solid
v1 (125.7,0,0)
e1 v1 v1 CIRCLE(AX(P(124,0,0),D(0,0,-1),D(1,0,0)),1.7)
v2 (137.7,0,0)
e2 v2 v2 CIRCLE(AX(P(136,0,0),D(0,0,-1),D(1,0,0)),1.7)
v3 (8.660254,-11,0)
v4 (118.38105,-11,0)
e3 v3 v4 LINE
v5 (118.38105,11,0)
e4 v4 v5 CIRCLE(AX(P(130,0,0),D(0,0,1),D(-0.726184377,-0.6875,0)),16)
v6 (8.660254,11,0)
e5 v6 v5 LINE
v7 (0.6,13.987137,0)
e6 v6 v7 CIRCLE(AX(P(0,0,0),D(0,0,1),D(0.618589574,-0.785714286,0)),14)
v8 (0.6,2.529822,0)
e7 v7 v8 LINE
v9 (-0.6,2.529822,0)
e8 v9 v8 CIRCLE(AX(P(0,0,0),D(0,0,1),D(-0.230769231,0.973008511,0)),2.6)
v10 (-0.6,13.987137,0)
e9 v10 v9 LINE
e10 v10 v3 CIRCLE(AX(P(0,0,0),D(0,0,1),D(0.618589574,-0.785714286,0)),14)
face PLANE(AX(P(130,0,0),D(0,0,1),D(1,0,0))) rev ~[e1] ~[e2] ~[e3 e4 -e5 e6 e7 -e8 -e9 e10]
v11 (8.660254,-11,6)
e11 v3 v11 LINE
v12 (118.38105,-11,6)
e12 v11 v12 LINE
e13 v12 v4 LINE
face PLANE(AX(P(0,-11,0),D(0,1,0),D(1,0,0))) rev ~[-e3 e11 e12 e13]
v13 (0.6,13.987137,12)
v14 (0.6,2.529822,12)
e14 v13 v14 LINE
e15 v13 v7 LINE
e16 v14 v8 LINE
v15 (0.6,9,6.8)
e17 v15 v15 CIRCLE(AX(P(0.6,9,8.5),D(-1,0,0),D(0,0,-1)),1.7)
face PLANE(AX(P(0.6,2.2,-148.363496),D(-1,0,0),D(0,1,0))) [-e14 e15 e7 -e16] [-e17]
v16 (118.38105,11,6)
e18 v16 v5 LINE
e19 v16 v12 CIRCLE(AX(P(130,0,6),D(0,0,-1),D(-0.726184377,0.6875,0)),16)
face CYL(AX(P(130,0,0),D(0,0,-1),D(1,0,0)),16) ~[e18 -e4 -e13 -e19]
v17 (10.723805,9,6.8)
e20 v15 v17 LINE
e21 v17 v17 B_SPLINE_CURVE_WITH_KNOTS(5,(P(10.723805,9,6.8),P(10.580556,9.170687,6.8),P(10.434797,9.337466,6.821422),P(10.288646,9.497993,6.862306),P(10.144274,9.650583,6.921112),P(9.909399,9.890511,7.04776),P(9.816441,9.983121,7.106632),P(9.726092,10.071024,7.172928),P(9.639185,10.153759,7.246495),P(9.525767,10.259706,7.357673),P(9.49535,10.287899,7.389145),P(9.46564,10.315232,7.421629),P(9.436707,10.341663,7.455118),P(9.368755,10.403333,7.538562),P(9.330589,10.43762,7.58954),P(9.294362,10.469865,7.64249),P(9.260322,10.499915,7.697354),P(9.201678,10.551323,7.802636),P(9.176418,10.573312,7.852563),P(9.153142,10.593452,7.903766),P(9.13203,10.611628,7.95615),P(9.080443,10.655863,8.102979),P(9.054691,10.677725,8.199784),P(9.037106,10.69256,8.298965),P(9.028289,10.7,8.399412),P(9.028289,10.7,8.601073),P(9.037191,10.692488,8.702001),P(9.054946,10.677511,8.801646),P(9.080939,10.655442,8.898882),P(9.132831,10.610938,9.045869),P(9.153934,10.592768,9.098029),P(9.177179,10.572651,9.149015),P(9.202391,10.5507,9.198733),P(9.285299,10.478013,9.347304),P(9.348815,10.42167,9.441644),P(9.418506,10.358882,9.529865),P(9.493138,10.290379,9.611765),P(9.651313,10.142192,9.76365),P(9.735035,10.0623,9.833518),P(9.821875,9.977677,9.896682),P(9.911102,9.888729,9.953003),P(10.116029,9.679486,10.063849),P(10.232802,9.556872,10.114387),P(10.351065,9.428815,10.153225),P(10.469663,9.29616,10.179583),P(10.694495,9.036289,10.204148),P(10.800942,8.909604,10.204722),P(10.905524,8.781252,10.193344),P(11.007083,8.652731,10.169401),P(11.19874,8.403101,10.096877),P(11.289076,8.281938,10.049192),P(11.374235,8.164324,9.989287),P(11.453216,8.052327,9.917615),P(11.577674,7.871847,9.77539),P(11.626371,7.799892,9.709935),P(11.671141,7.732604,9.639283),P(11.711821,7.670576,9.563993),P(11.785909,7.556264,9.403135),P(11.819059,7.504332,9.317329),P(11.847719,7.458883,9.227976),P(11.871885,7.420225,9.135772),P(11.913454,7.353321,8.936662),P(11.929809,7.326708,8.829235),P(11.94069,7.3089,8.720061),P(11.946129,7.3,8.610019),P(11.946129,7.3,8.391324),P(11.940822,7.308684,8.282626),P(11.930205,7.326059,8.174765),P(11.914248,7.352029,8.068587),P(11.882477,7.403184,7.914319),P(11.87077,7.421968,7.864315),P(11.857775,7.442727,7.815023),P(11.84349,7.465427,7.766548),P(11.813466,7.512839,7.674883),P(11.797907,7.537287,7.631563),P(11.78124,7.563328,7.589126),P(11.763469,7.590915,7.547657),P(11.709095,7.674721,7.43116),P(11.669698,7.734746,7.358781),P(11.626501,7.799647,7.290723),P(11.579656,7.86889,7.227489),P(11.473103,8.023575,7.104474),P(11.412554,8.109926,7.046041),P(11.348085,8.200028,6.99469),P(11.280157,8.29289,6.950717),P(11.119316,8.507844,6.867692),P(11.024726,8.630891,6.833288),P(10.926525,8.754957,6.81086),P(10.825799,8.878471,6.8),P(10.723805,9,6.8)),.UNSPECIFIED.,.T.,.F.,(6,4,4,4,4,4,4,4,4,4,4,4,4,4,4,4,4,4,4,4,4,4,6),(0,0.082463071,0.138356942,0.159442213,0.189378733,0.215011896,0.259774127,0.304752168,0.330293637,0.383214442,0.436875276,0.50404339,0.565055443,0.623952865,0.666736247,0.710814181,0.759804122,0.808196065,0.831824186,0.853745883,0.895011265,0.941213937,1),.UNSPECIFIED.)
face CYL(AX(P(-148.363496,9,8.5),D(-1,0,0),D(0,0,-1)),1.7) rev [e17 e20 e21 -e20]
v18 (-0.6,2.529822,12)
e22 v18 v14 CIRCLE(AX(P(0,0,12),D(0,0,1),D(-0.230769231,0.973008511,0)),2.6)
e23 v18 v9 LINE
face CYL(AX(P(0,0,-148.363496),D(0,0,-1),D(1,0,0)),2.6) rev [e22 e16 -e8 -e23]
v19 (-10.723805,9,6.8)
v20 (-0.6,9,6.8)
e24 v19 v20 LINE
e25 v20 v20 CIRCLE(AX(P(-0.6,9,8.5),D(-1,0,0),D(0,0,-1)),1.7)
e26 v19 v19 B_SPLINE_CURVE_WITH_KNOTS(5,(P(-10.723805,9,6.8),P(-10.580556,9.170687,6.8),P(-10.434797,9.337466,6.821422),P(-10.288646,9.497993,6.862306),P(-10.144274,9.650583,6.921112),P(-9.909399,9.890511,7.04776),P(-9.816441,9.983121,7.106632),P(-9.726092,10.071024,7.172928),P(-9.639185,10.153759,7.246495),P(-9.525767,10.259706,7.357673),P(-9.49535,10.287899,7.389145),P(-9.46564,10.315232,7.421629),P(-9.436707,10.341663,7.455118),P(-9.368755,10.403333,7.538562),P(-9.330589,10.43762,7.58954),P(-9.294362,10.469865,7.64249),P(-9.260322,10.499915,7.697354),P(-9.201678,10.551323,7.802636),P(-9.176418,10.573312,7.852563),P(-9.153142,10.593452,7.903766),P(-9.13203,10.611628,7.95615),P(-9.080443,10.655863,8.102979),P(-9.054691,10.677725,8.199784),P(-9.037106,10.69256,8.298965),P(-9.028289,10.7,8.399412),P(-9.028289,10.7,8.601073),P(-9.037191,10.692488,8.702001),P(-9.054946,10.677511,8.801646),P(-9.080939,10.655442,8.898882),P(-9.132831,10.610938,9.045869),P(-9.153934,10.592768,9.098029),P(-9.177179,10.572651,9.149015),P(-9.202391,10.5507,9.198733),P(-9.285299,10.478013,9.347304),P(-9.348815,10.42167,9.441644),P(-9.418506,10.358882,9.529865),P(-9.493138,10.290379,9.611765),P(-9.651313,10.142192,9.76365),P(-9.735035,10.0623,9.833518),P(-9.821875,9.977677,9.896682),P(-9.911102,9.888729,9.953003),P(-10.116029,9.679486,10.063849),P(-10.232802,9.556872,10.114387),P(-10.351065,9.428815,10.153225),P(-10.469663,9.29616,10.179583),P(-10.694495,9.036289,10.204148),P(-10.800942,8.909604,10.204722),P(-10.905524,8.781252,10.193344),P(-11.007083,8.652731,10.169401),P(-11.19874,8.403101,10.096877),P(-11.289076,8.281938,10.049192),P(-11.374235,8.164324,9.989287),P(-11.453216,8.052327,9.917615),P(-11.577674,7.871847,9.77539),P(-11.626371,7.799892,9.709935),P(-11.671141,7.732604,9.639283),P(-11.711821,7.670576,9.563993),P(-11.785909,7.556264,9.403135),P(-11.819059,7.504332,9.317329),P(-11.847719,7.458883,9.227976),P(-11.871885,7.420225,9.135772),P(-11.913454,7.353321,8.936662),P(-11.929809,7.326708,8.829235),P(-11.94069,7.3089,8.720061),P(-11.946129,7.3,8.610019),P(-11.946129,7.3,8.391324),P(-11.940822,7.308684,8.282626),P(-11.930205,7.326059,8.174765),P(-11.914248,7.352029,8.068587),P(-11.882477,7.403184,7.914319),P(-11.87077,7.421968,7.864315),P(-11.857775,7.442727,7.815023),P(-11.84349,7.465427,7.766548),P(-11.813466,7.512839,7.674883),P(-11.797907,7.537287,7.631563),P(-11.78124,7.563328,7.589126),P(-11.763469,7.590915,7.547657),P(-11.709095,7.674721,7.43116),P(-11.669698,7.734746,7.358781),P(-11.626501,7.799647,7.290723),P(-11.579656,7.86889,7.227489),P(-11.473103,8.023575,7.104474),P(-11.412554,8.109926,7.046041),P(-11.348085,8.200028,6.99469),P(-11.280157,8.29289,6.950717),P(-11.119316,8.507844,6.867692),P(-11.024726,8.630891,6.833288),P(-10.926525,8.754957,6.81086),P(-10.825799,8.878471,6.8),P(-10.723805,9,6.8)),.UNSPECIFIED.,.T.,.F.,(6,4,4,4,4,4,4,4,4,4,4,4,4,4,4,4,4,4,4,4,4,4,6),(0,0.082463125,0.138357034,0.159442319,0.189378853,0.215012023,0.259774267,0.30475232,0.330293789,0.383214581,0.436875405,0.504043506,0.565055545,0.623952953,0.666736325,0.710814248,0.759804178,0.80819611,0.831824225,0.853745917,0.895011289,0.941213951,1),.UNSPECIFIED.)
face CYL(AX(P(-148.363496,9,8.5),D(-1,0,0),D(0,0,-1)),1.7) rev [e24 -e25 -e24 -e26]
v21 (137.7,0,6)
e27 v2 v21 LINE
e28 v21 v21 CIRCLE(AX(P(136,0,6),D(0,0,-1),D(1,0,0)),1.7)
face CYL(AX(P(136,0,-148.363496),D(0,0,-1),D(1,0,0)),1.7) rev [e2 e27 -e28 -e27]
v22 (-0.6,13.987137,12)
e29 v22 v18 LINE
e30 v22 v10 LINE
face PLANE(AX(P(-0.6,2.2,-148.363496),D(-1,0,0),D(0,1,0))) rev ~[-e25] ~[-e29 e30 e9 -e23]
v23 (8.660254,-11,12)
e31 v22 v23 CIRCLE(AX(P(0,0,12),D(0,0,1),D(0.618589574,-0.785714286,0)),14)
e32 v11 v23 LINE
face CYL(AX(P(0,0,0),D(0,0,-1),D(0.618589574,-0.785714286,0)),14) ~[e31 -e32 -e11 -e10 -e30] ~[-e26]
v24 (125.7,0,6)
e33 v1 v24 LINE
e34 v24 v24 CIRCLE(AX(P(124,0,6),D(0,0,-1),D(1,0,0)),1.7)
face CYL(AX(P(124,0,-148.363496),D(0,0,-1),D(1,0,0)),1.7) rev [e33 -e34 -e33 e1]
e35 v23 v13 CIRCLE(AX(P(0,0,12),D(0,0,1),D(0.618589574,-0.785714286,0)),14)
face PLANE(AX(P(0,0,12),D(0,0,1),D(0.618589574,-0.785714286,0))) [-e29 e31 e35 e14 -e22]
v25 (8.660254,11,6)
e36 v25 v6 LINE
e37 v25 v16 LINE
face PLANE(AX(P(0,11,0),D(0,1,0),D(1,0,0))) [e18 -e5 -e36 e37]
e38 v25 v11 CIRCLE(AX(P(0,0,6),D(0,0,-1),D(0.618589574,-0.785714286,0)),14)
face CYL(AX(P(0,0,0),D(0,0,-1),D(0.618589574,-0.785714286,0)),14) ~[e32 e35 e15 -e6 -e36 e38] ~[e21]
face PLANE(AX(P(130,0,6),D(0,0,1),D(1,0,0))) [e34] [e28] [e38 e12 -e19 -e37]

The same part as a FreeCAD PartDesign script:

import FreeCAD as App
import Part
import Sketcher
from FreeCAD import Vector

doc = App.newDocument("Part")
params = doc.addObject("Spreadsheet::Sheet", "Params")
for row, (alias, value) in enumerate([
    ("sketch1_width", "130 mm"),
    ("sketch1_height", "22 mm"),
    ("pad1_length", "6 mm"),
    ("sketch2_diameter", "28 mm"),
    ("pad2_length", "12 mm"),
    ("sketch3_diameter", "32 mm"),
    ("pad3_length", "6 mm"),
    ("sketch4_diameter", "5.2 mm"),
    ("sketch4_diameter2", "3.4 mm"),
    ("sketch5_width", "1.2 mm"),
    ("sketch5_height", "12.8 mm"),
    ("sketch6_diameter", "3.4 mm"),
], start=1):
    params.set(f"A{row}", alias)
    params.set(f"B{row}", "=" + value)
    params.setAlias(f"B{row}", alias)

body = doc.addObject("PartDesign::Body", "Body")

# Sketch on XY plane
sketch1 = body.newObject("Sketcher::SketchObject", "Sketch")
sketch1.AttachmentSupport = (doc.getObject("XY_Plane"), [""])
sketch1.MapMode = "FlatFace"
sketch1.addGeometry([
    Part.LineSegment(Vector(0, 11, 0), Vector(0, -11, 0)),
    Part.LineSegment(Vector(0, -11, 0), Vector(130, -11, 0)),
    Part.LineSegment(Vector(130, -11, 0), Vector(130, 11, 0)),
    Part.LineSegment(Vector(130, 11, 0), Vector(0, 11, 0)),
], False)
sketch1.addConstraint([
    Sketcher.Constraint("Coincident", 0, 2, 1, 1),
    Sketcher.Constraint("Coincident", 1, 2, 2, 1),
    Sketcher.Constraint("Coincident", 2, 2, 3, 1),
    Sketcher.Constraint("Coincident", 3, 2, 0, 1),
    Sketcher.Constraint("Vertical", 0),
    Sketcher.Constraint("Horizontal", 1),
    Sketcher.Constraint("Vertical", 2),
    Sketcher.Constraint("Horizontal", 3),
    Sketcher.Constraint("Symmetric", 0, 2, 3, 2, -1, 1),
    Sketcher.Constraint("DistanceX", 1, 1, 1, 2, 130.0),
    Sketcher.Constraint("DistanceY", 0, 2, 0, 1, 22.0),
])
sketch1.setExpression("Constraints[9]", "Params.sketch1_width")
sketch1.setExpression("Constraints[10]", "Params.sketch1_height")
pad1 = body.newObject("PartDesign::Pad", "Pad")
pad1.Profile = sketch1
pad1.setExpression("Length", "Params.pad1_length")

# Sketch on XY plane
sketch2 = body.newObject("Sketcher::SketchObject", "Sketch001")
sketch2.AttachmentSupport = (doc.getObject("XY_Plane"), [""])
sketch2.MapMode = "FlatFace"
sketch2.addGeometry(Part.Circle(Vector(0, 0, 0), Vector(0, 0, 1), 14), False)
sketch2.addConstraint([
    Sketcher.Constraint("Coincident", 0, 3, -1, 1),
    Sketcher.Constraint("Diameter", 0, 28.0),
])
sketch2.setExpression("Constraints[1]", "Params.sketch2_diameter")
pad2 = body.newObject("PartDesign::Pad", "Pad001")
pad2.Profile = sketch2
pad2.setExpression("Length", "Params.pad2_length")

# Sketch on XY plane
sketch3 = body.newObject("Sketcher::SketchObject", "Sketch002")
sketch3.AttachmentSupport = (doc.getObject("XY_Plane"), [""])
sketch3.MapMode = "FlatFace"
sketch3.addGeometry(Part.Circle(Vector(130, 0, 0), Vector(0, 0, 1), 16), False)
sketch3.addConstraint([
    Sketcher.Constraint("PointOnObject", 0, 3, -1),
    Sketcher.Constraint("Diameter", 0, 32.0),
    Sketcher.Constraint("DistanceX", -1, 1, 0, 3, 130.0),
])
sketch3.setExpression("Constraints[1]", "Params.sketch3_diameter")
pad3 = body.newObject("PartDesign::Pad", "Pad002")
pad3.Profile = sketch3
pad3.setExpression("Length", "Params.pad3_length")

# Sketch on XY plane
sketch4 = body.newObject("Sketcher::SketchObject", "Sketch003")
sketch4.AttachmentSupport = (doc.getObject("XY_Plane"), [""])
sketch4.MapMode = "FlatFace"
sketch4.addGeometry([
    Part.Circle(Vector(0, 0, 0), Vector(0, 0, 1), 2.6),
    Part.Circle(Vector(124, 0, 0), Vector(0, 0, 1), 1.7),
    Part.Circle(Vector(136, 0, 0), Vector(0, 0, 1), 1.7),
], False)
sketch4.addConstraint([
    Sketcher.Constraint("Coincident", 0, 3, -1, 1),
    Sketcher.Constraint("Equal", 1, 2),
    Sketcher.Constraint("PointOnObject", 1, 3, -1),
    Sketcher.Constraint("PointOnObject", 2, 3, -1),
    Sketcher.Constraint("Diameter", 0, 5.2),
    Sketcher.Constraint("Diameter", 1, 3.4),
    Sketcher.Constraint("DistanceX", -1, 1, 1, 3, 124.0),
    Sketcher.Constraint("DistanceX", -1, 1, 2, 3, 136.0),
])
sketch4.setExpression("Constraints[4]", "Params.sketch4_diameter")
sketch4.setExpression("Constraints[5]", "Params.sketch4_diameter2")
pocket1 = body.newObject("PartDesign::Pocket", "Pocket")
pocket1.Profile = sketch4
pocket1.Type = "ThroughAll"
pocket1.Midplane = True

# Sketch on XY plane
sketch5 = body.newObject("Sketcher::SketchObject", "Sketch004")
sketch5.AttachmentSupport = (doc.getObject("XY_Plane"), [""])
sketch5.MapMode = "FlatFace"
sketch5.addGeometry([
    Part.LineSegment(Vector(-0.6, 15, 0), Vector(-0.6, 2.2, 0)),
    Part.LineSegment(Vector(-0.6, 2.2, 0), Vector(0.6, 2.2, 0)),
    Part.LineSegment(Vector(0.6, 2.2, 0), Vector(0.6, 15, 0)),
    Part.LineSegment(Vector(0.6, 15, 0), Vector(-0.6, 15, 0)),
], False)
sketch5.addConstraint([
    Sketcher.Constraint("Coincident", 0, 2, 1, 1),
    Sketcher.Constraint("Coincident", 1, 2, 2, 1),
    Sketcher.Constraint("Coincident", 2, 2, 3, 1),
    Sketcher.Constraint("Coincident", 3, 2, 0, 1),
    Sketcher.Constraint("Vertical", 0),
    Sketcher.Constraint("Horizontal", 1),
    Sketcher.Constraint("Vertical", 2),
    Sketcher.Constraint("Horizontal", 3),
    Sketcher.Constraint("DistanceX", 1, 1, 1, 2, 1.2),
    Sketcher.Constraint("DistanceY", 0, 2, 0, 1, 12.8),
    Sketcher.Constraint("DistanceY", -1, 1, 2, 2, 15.0),
    Sketcher.Constraint("DistanceX", 0, 2, -1, 1, 0.6),
])
sketch5.setExpression("Constraints[8]", "Params.sketch5_width")
sketch5.setExpression("Constraints[9]", "Params.sketch5_height")
pocket2 = body.newObject("PartDesign::Pocket", "Pocket001")
pocket2.Profile = sketch5
pocket2.Type = "ThroughAll"
pocket2.Midplane = True

# Sketch on YZ plane
sketch6 = body.newObject("Sketcher::SketchObject", "Sketch005")
sketch6.AttachmentSupport = (doc.getObject("YZ_Plane"), [""])
sketch6.MapMode = "FlatFace"
sketch6.addGeometry(Part.Circle(Vector(9, 8.5, 0), Vector(0, 0, 1), 1.7), False)
sketch6.addConstraint([
    Sketcher.Constraint("Diameter", 0, 3.4),
    Sketcher.Constraint("DistanceX", -1, 1, 0, 3, 9.0),
    Sketcher.Constraint("DistanceY", -1, 1, 0, 3, 8.5),
])
sketch6.setExpression("Constraints[0]", "Params.sketch6_diameter")
pocket3 = body.newObject("PartDesign::Pocket", "Pocket002")
pocket3.Profile = sketch6
pocket3.Type = "ThroughAll"
pocket3.Midplane = True

doc.recompute()
